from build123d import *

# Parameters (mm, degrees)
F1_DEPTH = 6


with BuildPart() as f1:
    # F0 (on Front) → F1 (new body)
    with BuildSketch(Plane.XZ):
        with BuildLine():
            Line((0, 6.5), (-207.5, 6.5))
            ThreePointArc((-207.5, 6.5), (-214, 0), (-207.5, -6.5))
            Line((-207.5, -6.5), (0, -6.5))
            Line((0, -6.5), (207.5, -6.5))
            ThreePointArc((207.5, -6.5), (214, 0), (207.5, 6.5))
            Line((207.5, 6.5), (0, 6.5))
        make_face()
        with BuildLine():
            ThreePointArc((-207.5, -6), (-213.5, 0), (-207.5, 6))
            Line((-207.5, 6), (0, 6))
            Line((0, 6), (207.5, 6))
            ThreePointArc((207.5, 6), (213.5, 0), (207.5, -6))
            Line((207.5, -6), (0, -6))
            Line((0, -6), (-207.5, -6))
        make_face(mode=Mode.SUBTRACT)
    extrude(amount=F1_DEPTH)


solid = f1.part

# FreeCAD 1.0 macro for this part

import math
import FreeCAD as App
import Part
import Sketcher
from FreeCAD import Vector

doc = App.newDocument("Part")
body = doc.addObject("PartDesign::Body", "Body")

sketch1 = body.newObject("Sketcher::SketchObject", "Sketch")
sketch1.AttachmentSupport = (doc.getObject("XZ_Plane"), [""])
sketch1.MapMode = "FlatFace"
sketch1.addGeometry([
    Part.ArcOfCircle(Part.Circle(Vector(-208, 0, 0), Vector(0, 0, 1), 6), math.radians(90), math.radians(270)),
    Part.LineSegment(Vector(-208, -6, 0), Vector(208, -6, 0)),
    Part.ArcOfCircle(Part.Circle(Vector(208, 0, 0), Vector(0, 0, 1), 6), math.radians(-90), math.radians(90)),
    Part.LineSegment(Vector(208, 6, 0), Vector(-208, 6, 0)),
    Part.LineSegment(Vector(208, -6, 0), Vector(-208, -6, 0)),
    Part.ArcOfCircle(Part.Circle(Vector(-208, 0, 0), Vector(0, 0, 1), 6), math.radians(90), math.radians(270)),
    Part.LineSegment(Vector(-208, 6, 0), Vector(208, 6, 0)),
    Part.ArcOfCircle(Part.Circle(Vector(208, 0, 0), Vector(0, 0, 1), 6), math.radians(-90), math.radians(90)),
], False)
sketch1.addConstraint([
    Sketcher.Constraint("Tangent", 0, 2, 1, 1),
    Sketcher.Constraint("Tangent", 1, 2, 2, 1),
    Sketcher.Constraint("Tangent", 2, 2, 3, 1),
    Sketcher.Constraint("Tangent", 3, 2, 0, 1),
    Sketcher.Constraint("Tangent", 4, 2, 5, 2),
    Sketcher.Constraint("Tangent", 5, 1, 6, 1),
    Sketcher.Constraint("Tangent", 6, 2, 7, 2),
    Sketcher.Constraint("Tangent", 7, 1, 4, 1),
    Sketcher.Constraint("Horizontal", 1),
    Sketcher.Constraint("Horizontal", 3),
    Sketcher.Constraint("Horizontal", 4),
    Sketcher.Constraint("Horizontal", 6),
    Sketcher.Constraint("Coincident", 5, 3, 0, 3),
    Sketcher.Constraint("Symmetric", 0, 3, 2, 3, -1, 1),
    Sketcher.Constraint("Vertical", 7, 3, 1, 2),
    Sketcher.Constraint("Radius", 5, 6.0),
    Sketcher.Constraint("Radius", 0, 6.5),
    Sketcher.Constraint("DistanceX", 1, 1, 1, 2, 415.0),
])
pad1 = body.newObject("PartDesign::Pad", "Pad")
pad1.Profile = sketch1
pad1.Length = 6

doc.recompute()
